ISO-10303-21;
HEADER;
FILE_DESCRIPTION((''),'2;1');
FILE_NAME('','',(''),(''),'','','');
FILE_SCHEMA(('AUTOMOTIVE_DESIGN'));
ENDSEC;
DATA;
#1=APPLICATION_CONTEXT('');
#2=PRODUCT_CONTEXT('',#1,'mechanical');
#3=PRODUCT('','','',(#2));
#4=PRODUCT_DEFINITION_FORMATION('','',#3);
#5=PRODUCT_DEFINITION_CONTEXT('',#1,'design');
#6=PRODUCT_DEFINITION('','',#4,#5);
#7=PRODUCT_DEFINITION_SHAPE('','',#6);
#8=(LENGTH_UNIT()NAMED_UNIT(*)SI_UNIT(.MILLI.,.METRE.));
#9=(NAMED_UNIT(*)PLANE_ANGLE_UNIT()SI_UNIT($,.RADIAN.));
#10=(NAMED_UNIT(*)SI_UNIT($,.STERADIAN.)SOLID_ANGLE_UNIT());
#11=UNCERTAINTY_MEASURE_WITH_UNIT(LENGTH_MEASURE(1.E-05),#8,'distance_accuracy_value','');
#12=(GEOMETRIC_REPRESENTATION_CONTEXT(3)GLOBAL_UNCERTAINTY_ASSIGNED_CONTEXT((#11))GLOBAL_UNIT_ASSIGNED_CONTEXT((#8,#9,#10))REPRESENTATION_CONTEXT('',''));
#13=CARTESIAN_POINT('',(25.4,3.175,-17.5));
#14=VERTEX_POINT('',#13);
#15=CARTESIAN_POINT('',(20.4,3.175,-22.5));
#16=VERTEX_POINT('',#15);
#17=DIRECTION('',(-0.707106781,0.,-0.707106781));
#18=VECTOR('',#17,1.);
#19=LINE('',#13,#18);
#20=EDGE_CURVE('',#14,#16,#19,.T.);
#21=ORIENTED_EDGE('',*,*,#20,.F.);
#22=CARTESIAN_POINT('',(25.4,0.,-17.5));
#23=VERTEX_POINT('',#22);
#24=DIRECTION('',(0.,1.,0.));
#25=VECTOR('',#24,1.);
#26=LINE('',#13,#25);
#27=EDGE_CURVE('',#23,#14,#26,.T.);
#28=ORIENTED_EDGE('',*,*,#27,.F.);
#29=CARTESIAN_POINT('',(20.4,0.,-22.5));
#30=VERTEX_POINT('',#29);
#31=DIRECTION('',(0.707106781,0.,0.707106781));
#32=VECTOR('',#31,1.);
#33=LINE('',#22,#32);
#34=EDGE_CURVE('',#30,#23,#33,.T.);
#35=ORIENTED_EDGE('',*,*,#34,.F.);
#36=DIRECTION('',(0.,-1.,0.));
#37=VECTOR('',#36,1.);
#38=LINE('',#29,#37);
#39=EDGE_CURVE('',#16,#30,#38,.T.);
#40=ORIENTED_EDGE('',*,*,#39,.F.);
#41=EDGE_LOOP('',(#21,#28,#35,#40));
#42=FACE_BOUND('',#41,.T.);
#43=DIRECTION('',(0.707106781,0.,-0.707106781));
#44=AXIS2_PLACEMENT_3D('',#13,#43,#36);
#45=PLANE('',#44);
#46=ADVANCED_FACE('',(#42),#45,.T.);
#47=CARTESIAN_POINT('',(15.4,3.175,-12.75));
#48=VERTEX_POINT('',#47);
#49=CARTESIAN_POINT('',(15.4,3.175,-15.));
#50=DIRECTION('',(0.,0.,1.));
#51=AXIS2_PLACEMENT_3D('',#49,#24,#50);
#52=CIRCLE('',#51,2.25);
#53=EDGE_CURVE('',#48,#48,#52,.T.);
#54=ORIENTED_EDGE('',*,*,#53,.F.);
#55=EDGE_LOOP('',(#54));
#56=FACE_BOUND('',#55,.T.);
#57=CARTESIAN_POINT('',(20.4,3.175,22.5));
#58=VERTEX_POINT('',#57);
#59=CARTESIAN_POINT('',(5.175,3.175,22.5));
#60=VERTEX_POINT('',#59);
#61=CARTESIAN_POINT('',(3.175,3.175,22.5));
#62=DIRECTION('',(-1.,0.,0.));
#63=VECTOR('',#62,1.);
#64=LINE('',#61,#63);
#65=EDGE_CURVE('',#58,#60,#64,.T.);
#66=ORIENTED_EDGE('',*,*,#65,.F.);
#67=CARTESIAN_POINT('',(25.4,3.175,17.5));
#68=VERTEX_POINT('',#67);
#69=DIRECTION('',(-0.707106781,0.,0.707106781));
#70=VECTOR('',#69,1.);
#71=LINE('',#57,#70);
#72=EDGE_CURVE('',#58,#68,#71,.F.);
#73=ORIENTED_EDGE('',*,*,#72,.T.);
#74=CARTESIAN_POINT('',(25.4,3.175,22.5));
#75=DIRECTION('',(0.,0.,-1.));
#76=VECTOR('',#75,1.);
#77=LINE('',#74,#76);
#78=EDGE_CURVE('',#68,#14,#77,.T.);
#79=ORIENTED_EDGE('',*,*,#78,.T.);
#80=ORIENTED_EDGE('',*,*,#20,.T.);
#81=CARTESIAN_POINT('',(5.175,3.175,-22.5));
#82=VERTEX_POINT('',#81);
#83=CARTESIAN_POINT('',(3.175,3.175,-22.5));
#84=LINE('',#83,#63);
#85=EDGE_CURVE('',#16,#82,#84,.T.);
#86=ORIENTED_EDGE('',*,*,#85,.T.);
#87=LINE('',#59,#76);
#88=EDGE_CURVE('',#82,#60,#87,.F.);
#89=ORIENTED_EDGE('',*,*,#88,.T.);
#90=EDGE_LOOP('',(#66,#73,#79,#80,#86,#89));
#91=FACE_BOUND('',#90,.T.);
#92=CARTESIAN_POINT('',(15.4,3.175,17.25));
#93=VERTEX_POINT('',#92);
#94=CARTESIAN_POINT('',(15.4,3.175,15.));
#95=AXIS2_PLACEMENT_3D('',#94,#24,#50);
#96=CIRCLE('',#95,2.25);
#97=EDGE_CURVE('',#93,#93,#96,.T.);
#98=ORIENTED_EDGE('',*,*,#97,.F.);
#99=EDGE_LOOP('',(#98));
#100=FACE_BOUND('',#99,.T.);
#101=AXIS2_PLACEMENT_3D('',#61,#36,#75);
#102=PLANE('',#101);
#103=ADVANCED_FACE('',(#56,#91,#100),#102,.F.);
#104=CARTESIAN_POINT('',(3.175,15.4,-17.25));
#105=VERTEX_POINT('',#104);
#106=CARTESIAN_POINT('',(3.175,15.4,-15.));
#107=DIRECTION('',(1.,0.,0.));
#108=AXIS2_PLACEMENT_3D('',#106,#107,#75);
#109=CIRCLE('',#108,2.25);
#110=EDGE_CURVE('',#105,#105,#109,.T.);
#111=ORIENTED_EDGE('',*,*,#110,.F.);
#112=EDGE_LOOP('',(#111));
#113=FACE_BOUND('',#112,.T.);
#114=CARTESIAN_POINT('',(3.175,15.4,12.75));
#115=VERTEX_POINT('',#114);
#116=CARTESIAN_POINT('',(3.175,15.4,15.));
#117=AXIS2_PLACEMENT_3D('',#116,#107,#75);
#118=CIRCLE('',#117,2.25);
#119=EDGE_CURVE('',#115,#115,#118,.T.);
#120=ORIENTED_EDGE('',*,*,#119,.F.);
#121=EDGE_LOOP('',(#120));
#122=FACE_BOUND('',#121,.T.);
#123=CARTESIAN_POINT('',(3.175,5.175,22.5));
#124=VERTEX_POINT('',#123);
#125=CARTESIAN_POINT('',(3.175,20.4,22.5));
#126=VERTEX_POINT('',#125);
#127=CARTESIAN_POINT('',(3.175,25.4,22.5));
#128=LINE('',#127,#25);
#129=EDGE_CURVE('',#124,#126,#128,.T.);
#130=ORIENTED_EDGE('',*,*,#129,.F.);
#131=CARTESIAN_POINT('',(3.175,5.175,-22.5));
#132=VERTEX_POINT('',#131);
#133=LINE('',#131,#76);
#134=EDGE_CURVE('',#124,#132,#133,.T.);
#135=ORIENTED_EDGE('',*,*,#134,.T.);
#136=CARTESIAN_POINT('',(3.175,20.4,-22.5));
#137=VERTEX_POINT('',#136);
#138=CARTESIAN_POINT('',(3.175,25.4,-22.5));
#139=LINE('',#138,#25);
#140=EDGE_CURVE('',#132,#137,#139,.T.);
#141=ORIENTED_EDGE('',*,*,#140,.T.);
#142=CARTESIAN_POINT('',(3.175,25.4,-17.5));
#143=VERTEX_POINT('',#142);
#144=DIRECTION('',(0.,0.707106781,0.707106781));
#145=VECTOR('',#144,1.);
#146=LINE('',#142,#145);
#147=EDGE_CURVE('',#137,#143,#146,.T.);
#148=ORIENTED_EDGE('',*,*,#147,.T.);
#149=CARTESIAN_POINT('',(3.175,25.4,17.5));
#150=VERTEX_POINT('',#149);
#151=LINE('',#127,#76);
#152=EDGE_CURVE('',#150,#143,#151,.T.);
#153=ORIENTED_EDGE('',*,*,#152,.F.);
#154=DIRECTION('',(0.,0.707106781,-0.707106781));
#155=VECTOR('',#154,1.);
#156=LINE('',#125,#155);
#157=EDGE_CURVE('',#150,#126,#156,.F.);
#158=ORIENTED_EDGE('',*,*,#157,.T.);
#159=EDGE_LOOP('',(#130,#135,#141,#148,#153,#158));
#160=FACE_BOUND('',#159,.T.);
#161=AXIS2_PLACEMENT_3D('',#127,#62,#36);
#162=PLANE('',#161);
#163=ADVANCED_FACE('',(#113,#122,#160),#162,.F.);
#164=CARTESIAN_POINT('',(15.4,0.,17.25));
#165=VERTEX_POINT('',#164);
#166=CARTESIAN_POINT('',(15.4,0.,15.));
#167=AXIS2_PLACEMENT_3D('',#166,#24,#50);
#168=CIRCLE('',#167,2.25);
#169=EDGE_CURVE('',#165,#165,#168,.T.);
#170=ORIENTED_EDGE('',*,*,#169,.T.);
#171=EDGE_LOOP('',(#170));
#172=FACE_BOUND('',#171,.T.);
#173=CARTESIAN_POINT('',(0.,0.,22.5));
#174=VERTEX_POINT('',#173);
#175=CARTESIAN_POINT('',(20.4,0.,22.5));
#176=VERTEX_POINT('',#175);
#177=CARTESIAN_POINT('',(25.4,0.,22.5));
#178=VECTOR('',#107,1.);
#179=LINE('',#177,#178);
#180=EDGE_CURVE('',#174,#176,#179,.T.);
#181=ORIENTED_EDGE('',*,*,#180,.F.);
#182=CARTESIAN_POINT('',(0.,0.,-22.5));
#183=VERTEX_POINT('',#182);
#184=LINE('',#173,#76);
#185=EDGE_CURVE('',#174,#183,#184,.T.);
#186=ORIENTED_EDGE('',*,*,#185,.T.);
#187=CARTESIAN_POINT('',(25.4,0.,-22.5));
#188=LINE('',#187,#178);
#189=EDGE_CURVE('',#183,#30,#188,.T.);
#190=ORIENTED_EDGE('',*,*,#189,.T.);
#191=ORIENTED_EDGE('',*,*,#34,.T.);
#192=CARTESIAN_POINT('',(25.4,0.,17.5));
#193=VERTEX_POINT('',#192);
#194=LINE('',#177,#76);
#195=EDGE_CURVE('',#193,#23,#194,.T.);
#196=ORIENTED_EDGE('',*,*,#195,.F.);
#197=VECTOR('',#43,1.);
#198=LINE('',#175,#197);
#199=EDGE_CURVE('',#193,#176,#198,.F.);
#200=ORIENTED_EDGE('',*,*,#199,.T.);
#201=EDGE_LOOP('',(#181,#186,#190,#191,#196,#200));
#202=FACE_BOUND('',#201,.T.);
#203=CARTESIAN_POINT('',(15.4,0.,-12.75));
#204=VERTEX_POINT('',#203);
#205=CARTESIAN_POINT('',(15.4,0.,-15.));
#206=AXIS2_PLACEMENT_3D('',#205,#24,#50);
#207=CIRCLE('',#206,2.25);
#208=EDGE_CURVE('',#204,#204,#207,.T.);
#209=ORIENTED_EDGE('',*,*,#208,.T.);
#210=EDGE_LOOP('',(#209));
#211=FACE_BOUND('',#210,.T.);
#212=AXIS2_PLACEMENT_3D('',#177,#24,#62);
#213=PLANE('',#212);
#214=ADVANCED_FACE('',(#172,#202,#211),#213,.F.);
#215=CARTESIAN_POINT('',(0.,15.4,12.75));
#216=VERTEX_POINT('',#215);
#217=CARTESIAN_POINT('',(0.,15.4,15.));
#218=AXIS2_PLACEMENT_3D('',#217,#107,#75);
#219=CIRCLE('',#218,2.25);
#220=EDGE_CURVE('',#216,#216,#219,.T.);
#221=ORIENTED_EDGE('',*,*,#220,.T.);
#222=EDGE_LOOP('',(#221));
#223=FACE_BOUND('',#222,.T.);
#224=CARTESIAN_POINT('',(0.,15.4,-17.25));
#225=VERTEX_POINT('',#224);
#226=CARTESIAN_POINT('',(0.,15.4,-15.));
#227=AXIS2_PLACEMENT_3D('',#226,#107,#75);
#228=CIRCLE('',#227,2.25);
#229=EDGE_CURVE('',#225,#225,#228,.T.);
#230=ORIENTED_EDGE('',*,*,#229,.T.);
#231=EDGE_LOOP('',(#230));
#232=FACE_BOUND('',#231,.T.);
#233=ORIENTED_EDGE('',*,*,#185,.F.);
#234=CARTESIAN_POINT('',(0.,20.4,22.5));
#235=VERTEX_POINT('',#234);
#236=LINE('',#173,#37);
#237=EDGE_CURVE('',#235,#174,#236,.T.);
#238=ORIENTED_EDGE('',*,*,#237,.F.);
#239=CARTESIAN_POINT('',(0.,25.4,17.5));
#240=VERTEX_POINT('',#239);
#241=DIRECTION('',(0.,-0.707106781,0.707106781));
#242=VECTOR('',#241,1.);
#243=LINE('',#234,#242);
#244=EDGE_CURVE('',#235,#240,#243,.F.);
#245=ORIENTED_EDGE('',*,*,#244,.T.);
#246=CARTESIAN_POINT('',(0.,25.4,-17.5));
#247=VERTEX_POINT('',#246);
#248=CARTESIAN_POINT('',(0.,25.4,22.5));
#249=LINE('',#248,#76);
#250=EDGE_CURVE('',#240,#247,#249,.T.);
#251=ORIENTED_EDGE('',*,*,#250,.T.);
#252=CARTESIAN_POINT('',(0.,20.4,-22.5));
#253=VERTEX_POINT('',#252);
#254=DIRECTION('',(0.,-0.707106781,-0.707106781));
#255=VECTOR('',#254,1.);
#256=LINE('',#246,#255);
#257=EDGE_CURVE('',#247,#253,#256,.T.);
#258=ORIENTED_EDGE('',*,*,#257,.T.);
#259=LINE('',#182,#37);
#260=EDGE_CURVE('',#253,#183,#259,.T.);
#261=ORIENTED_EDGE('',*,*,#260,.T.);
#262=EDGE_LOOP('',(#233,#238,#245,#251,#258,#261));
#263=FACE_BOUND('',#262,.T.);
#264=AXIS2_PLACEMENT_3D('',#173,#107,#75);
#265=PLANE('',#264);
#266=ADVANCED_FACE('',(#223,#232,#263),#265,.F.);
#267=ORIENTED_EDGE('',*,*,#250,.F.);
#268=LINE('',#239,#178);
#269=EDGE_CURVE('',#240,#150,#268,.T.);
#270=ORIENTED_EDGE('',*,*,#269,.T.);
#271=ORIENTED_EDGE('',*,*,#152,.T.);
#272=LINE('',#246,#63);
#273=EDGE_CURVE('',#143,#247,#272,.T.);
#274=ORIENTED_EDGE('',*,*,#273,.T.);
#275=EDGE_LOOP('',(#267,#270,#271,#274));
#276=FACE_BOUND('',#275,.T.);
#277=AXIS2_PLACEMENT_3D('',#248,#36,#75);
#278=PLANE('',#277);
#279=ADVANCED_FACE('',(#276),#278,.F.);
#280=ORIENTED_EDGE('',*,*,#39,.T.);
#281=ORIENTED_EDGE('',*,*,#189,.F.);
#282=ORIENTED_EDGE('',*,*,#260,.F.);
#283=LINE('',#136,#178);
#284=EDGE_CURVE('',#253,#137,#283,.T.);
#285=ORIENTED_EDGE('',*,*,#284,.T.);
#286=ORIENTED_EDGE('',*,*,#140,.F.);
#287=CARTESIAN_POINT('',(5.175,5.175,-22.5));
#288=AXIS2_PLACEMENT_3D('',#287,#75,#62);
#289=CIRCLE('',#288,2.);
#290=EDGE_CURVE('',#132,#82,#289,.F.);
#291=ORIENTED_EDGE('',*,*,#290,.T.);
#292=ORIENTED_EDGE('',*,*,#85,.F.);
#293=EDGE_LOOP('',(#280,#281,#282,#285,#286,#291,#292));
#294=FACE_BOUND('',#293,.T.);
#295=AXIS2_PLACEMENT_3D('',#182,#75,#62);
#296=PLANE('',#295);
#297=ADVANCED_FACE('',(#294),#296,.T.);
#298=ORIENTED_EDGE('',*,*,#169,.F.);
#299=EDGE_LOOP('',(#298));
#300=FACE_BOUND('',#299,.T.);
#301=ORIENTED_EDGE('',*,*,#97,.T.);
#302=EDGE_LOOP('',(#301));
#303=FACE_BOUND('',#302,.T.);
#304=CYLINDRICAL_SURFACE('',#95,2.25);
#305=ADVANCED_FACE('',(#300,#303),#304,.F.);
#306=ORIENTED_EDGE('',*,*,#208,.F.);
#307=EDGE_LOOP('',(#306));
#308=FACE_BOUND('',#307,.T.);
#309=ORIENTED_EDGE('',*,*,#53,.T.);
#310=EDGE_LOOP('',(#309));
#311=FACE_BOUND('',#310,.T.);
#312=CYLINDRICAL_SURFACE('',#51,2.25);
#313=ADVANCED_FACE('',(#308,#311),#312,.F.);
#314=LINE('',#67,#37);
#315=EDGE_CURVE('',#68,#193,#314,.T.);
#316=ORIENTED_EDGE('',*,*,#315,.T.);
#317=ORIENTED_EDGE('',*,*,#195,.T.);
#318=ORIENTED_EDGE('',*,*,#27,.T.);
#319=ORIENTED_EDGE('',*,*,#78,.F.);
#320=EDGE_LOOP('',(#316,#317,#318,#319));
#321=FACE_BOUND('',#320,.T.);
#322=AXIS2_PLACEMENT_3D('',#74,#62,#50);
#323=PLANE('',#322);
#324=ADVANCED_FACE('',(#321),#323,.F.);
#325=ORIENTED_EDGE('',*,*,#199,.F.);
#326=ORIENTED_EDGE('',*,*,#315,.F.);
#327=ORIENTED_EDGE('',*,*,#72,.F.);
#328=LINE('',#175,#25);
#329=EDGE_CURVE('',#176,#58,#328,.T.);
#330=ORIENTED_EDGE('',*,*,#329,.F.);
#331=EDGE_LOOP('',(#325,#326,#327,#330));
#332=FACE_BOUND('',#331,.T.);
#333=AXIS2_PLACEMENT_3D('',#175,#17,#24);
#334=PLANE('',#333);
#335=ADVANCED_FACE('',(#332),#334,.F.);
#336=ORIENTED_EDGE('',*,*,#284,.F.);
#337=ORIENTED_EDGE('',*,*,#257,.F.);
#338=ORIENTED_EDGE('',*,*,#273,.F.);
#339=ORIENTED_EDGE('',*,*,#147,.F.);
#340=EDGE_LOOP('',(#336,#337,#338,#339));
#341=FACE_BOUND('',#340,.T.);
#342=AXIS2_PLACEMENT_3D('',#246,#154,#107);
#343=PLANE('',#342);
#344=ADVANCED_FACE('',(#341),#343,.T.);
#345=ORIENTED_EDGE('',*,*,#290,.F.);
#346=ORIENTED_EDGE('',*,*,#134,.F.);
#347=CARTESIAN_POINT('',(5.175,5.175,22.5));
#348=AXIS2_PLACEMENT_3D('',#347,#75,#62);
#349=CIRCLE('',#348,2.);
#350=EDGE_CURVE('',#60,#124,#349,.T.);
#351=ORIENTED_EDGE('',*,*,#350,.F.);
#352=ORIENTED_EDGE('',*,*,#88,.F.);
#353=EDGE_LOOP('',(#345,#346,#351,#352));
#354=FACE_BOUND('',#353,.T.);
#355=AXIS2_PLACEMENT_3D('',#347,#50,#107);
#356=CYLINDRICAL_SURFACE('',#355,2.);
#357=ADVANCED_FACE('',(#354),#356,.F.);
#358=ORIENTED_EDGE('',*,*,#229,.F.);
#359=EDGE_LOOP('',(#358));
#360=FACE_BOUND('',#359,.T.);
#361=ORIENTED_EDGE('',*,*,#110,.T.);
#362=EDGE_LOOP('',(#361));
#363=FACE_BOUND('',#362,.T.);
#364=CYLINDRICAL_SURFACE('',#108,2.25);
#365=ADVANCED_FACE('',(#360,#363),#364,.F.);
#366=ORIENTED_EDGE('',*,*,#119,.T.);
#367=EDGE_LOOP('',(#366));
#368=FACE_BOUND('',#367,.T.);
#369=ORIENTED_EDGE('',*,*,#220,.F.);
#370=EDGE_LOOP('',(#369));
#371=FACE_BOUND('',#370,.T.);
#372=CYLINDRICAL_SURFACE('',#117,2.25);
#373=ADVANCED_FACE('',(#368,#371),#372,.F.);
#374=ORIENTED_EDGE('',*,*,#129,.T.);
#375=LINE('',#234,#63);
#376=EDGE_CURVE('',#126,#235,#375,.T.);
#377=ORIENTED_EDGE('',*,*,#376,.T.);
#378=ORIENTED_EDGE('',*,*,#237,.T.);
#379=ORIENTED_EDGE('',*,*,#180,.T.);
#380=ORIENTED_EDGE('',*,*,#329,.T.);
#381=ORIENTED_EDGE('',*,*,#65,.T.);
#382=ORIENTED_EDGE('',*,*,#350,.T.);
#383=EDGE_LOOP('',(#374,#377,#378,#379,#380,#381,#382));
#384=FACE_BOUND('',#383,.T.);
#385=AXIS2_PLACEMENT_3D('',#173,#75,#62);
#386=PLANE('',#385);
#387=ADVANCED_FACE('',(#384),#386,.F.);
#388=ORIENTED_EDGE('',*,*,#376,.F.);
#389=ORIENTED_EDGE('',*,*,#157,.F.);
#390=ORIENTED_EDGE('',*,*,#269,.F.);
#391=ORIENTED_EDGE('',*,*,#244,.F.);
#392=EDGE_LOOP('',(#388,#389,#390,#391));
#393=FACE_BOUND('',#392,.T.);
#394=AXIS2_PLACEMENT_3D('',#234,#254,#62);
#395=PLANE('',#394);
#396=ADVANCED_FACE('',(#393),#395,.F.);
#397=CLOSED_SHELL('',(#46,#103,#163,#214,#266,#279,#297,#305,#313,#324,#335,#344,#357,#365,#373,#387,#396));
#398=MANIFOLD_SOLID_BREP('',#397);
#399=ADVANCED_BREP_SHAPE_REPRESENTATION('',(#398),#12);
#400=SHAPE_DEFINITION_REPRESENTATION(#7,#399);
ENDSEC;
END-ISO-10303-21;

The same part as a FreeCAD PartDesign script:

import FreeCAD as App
import Part
import Sketcher

V = App.Vector


def edges_at(feature, points):
    """Names of the edges that pass closest to the given points."""
    edges = feature.Shape.Edges
    near = lambda p: min(range(len(edges)), key=lambda i: edges[i].distToShape(Part.Vertex(*p))[0])
    return sorted({f"Edge{near(p) + 1}" for p in points})

doc = App.newDocument("Part")
params = doc.addObject("Spreadsheet::Sheet", "Params")
for row, (alias, value) in enumerate([
    ("sketch1_width", "25.4 mm"),
    ("pad1_length", "45 mm"),
    ("sketch2_diameter", "4.5 mm"),
    ("hole_diameter", "4.5 mm"),
    ("sketch3_diameter", "4.5 mm"),
    ("hole2_diameter", "4.5 mm"),
    ("fillet_radius", "2 mm"),
    ("chamfer_size", "5 mm"),
], start=1):
    params.set(f"A{row}", alias)
    params.set(f"B{row}", "=" + value)
    params.setAlias(f"B{row}", alias)

body = doc.addObject("PartDesign::Body", "Body")

# Sketch on XY plane
sketch1 = body.newObject("Sketcher::SketchObject", "Sketch")
sketch1.AttachmentSupport = (doc.getObject("XY_Plane"), [""])
sketch1.MapMode = "FlatFace"
sketch1.addGeometry([
    Part.LineSegment(V(0, 25.4, 0), V(0, 0, 0)),  # 0
    Part.LineSegment(V(0, 0, 0), V(25.4, 0, 0)),  # 1
    Part.LineSegment(V(25.4, 0, 0), V(25.4, 3.2, 0)),  # 2
    Part.LineSegment(V(25.4, 3.2, 0), V(3.2, 3.2, 0)),  # 3
    Part.LineSegment(V(3.2, 3.2, 0), V(3.2, 25.4, 0)),  # 4
    Part.LineSegment(V(3.2, 25.4, 0), V(0, 25.4, 0)),  # 5
], False)
sketch1.addConstraint([
    Sketcher.Constraint("Coincident", 0, 2, 1, 1),
    Sketcher.Constraint("Coincident", 1, 2, 2, 1),
    Sketcher.Constraint("Coincident", 2, 2, 3, 1),
    Sketcher.Constraint("Coincident", 3, 2, 4, 1),
    Sketcher.Constraint("Coincident", 4, 2, 5, 1),
    Sketcher.Constraint("Coincident", 5, 2, 0, 1),
    Sketcher.Constraint("Vertical", 0),
    Sketcher.Constraint("Horizontal", 1),
    Sketcher.Constraint("Vertical", 2),
    Sketcher.Constraint("Horizontal", 3),
    Sketcher.Constraint("Vertical", 4),
    Sketcher.Constraint("Horizontal", 5),
    Sketcher.Constraint("Coincident", 0, 2, -1, 1),
    Sketcher.Constraint("Equal", 1, 0),
    Sketcher.Constraint("Equal", 5, 2),
    Sketcher.Constraint("DistanceX", 1, 1, 1, 2, 25.4),
    Sketcher.Constraint("DistanceX", 3, 2, 3, 1, 22.225),
])
sketch1.setExpression("Constraints[15]", "Params.sketch1_width")
pad1 = body.newObject("PartDesign::Pad", "Pad")
pad1.Profile = sketch1
pad1.setExpression("Length", "Params.pad1_length")
pad1.Midplane = True

# Sketch on XZ plane
sketch2 = body.newObject("Sketcher::SketchObject", "Sketch001")
sketch2.AttachmentSupport = (doc.getObject("XZ_Plane"), [""])
sketch2.MapMode = "FlatFace"
sketch2.AttachmentOffset = App.Placement(V(0, 0, -3.175), App.Rotation())
sketch2.addGeometry([
    Part.Circle(V(15.4, -15, 0), V(0, 0, 1), 2.2),
    Part.Circle(V(15.4, 15, 0), V(0, 0, 1), 2.2),
], False)
sketch2.addConstraint([
    Sketcher.Constraint("Equal", 0, 1),
    Sketcher.Constraint("Symmetric", 0, 3, 1, 3, -1),
    Sketcher.Constraint("Diameter", 0, 4.5),
    Sketcher.Constraint("DistanceY", 0, 3, -1, 1, 15.0),
    Sketcher.Constraint("DistanceX", -1, 1, 0, 3, 15.4),
])
sketch2.setExpression("Constraints[2]", "Params.sketch2_diameter")
doc.recompute()
hole = body.newObject("PartDesign::Hole", "Hole")
hole.Profile = sketch2
hole.ThreadType = "None"
hole.setExpression("Diameter", "Params.hole_diameter")
hole.DepthType = "ThroughAll"
hole.Reversed = True

# Sketch on YZ plane
sketch3 = body.newObject("Sketcher::SketchObject", "Sketch002")
sketch3.AttachmentSupport = (doc.getObject("YZ_Plane"), [""])
sketch3.MapMode = "FlatFace"
sketch3.AttachmentOffset = App.Placement(V(0, 0, 3.175), App.Rotation())
sketch3.addGeometry([
    Part.Circle(V(15.4, 15, 0), V(0, 0, 1), 2.2),
    Part.Circle(V(15.4, -15, 0), V(0, 0, 1), 2.2),
], False)
sketch3.addConstraint([
    Sketcher.Constraint("Equal", 0, 1),
    Sketcher.Constraint("Symmetric", 0, 3, 1, 3, -1),
    Sketcher.Constraint("Diameter", 0, 4.5),
    Sketcher.Constraint("DistanceY", -1, 1, 0, 3, 15.0),
    Sketcher.Constraint("DistanceX", -1, 1, 0, 3, 15.4),
])
sketch3.setExpression("Constraints[2]", "Params.sketch3_diameter")
doc.recompute()
hole2 = body.newObject("PartDesign::Hole", "Hole001")
hole2.Profile = sketch3
hole2.ThreadType = "None"
hole2.setExpression("Diameter", "Params.hole2_diameter")
hole2.DepthType = "ThroughAll"
doc.recompute()

fillet = body.newObject("PartDesign::Fillet", "Fillet")
fillet.Base = (hole2, edges_at(hole2, [(3.175, 3.175, 0)]))
fillet.setExpression("Radius", "Params.fillet_radius")
doc.recompute()

chamfer = body.newObject("PartDesign::Chamfer", "Chamfer")
chamfer.Base = (fillet, edges_at(fillet, [
    (1.587, 25.4, 22.5),
    (1.587, 25.4, -22.5),
    (25.4, 1.587, -22.5),
    (25.4, 1.587, 22.5),
]))
chamfer.setExpression("Size", "Params.chamfer_size")

doc.recompute()
